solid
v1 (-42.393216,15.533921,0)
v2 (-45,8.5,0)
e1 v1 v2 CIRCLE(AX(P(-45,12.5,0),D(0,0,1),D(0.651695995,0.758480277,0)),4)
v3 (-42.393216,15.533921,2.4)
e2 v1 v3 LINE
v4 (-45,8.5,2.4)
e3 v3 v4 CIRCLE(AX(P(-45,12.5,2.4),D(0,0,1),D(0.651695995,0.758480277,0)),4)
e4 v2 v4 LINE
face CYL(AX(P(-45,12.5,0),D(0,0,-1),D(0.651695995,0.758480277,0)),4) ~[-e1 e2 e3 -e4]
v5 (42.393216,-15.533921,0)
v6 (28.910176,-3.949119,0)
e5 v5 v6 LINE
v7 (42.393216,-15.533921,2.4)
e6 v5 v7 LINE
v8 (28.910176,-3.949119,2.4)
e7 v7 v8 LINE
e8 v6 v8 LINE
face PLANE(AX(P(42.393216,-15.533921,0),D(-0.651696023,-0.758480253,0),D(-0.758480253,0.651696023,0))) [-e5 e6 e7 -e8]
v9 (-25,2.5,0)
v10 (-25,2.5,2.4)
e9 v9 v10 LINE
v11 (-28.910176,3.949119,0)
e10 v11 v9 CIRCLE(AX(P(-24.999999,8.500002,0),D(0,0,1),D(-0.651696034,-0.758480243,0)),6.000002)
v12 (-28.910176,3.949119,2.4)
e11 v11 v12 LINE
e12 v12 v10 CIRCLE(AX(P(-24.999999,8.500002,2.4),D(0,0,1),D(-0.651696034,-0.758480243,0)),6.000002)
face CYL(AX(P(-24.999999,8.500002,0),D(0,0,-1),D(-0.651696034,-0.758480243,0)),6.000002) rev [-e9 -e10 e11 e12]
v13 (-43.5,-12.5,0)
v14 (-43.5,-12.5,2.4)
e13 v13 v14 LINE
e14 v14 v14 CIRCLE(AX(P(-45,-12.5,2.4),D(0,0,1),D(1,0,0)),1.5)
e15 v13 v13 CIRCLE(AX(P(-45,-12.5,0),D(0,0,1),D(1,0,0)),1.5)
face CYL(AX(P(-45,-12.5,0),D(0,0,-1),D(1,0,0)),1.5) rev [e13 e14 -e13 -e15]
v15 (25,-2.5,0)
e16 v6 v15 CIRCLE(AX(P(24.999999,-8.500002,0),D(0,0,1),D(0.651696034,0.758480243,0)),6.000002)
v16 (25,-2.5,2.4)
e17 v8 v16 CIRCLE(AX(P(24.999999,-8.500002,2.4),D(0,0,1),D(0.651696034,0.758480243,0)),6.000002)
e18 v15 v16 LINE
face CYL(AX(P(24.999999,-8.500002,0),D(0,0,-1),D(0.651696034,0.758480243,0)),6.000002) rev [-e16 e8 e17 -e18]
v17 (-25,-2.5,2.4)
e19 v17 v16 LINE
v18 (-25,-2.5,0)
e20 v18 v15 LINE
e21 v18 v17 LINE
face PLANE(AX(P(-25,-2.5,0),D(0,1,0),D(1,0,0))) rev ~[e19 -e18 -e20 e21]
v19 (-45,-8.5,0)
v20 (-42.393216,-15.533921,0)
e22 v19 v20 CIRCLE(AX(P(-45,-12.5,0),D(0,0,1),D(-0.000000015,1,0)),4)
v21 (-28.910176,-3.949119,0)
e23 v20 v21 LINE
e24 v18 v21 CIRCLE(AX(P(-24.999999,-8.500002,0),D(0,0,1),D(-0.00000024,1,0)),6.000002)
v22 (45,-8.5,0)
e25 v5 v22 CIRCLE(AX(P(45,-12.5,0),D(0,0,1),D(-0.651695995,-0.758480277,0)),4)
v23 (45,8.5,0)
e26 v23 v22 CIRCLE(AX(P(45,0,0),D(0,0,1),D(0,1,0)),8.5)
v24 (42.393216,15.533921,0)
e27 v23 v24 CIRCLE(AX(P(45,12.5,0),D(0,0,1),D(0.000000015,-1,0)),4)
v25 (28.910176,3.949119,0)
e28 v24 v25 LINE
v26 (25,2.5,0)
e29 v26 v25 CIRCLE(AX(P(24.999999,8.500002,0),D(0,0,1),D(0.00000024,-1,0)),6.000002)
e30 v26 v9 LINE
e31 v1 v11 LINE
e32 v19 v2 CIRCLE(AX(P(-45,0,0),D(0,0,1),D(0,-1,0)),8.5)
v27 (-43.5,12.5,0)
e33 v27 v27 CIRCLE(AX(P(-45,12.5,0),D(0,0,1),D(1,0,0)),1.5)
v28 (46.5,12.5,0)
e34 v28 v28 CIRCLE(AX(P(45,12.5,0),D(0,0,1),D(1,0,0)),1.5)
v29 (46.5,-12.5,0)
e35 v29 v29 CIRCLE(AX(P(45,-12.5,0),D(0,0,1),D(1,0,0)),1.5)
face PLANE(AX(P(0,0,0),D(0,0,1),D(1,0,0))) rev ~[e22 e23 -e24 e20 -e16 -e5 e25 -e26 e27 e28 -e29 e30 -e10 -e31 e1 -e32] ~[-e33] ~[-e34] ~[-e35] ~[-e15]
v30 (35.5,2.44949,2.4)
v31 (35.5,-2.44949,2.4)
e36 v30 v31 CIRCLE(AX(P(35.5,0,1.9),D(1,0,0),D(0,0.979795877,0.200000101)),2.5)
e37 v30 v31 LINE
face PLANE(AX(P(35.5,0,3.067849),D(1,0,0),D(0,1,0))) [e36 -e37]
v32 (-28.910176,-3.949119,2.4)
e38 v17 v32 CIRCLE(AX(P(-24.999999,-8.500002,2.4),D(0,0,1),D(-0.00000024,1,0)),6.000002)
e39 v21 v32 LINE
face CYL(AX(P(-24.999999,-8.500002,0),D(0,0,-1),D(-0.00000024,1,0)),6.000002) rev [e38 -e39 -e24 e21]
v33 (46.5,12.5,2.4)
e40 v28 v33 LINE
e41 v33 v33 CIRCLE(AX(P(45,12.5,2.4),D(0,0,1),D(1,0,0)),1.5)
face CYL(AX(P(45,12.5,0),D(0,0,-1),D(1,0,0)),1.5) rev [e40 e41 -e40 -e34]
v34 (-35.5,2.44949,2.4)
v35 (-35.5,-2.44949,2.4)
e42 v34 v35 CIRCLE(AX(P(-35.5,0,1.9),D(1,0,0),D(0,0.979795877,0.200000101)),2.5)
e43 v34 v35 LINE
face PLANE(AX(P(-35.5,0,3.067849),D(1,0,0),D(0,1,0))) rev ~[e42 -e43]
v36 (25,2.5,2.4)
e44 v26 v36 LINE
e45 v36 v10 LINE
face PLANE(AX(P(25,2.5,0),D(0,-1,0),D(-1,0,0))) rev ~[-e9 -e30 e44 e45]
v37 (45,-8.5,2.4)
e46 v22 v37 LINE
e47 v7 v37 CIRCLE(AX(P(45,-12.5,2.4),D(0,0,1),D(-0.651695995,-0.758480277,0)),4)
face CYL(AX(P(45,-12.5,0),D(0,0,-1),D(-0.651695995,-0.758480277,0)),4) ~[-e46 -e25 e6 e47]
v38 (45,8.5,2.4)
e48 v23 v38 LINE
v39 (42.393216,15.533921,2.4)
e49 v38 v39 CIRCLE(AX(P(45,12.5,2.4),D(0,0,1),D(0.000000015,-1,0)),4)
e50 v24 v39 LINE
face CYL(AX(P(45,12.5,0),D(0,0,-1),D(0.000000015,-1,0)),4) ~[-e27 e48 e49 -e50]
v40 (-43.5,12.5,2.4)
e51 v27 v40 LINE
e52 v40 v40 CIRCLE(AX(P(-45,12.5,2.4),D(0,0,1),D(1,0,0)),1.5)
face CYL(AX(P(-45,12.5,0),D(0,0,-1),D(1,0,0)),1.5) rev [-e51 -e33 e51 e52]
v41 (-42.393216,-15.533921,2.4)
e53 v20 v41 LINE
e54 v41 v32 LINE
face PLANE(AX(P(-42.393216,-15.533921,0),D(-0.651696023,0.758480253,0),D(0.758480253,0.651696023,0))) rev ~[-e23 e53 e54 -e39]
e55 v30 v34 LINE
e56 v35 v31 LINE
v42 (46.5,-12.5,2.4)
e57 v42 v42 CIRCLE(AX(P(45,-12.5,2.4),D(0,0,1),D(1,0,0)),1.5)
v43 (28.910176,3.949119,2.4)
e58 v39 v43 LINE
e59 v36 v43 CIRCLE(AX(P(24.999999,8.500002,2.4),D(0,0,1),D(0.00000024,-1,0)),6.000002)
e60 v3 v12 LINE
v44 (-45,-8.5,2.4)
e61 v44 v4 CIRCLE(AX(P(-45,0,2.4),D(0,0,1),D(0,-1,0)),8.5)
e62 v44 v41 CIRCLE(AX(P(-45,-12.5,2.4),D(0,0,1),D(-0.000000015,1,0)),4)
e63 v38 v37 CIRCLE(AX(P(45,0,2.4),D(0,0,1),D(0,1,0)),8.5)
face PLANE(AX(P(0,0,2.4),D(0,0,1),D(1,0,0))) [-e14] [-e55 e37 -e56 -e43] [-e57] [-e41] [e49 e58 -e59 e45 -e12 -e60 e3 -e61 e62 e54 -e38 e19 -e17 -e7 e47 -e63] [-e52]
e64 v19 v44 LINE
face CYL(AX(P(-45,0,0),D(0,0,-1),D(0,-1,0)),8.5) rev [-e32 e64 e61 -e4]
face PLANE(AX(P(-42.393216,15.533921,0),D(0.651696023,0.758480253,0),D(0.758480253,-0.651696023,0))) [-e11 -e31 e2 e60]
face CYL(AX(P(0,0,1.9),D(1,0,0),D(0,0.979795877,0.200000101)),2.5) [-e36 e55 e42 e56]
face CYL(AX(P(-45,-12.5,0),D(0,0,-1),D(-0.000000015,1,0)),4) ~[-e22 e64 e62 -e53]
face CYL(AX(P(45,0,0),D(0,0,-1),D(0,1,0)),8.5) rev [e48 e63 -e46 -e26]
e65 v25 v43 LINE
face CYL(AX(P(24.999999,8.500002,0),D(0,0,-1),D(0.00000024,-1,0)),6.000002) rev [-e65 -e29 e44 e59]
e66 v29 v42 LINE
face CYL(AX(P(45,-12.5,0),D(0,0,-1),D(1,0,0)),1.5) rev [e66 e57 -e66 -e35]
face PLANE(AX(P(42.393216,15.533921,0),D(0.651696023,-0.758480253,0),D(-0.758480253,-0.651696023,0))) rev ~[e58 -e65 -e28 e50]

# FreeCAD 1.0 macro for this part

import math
import FreeCAD as App
import Part
import Sketcher

V = App.Vector

doc = App.newDocument("Part")
params = doc.addObject("Spreadsheet::Sheet", "Params")
for row, (alias, value) in enumerate([
    ("sketch1_diameter", "3 mm"),
    ("sketch1_radius", "4 mm"),
    ("sketch1_radius2", "6.000002 mm"),
    ("sketch1_radius3", "8.5 mm"),
    ("sketch1_width", "50 mm"),
    ("pad1_length", "2.4 mm"),
    ("sketch2_radius", "2.5 mm"),
    ("pad2_length", "71 mm"),
], start=1):
    params.set(f"A{row}", alias)
    params.set(f"B{row}", "=" + value)
    params.setAlias(f"B{row}", alias)

body = doc.addObject("PartDesign::Body", "Body")

# Sketch on XY plane
sketch1 = body.newObject("Sketcher::SketchObject", "Sketch")
sketch1.AttachmentSupport = (doc.getObject("XY_Plane"), [""])
sketch1.MapMode = "FlatFace"
sketch1.addGeometry([
    Part.ArcOfCircle(Part.Circle(V(45, -12.5, 0), V(0, 0, 1), 4), math.radians(-131), math.radians(90)),  # 0
    Part.ArcOfCircle(Part.Circle(V(45, 0, 0), V(0, 0, 1), 8.5), math.radians(90), math.radians(270)),  # 1
    Part.ArcOfCircle(Part.Circle(V(45, 12.5, 0), V(0, 0, 1), 4), math.radians(-90), math.radians(131)),  # 2
    Part.LineSegment(V(42.4, 15.5, 0), V(28.9, 3.9, 0)),  # 3
    Part.ArcOfCircle(Part.Circle(V(25, 8.5, 0), V(0, 0, 1), 6), math.radians(-90), math.radians(-49)),  # 4
    Part.LineSegment(V(25, 2.5, 0), V(-25, 2.5, 0)),  # 5
    Part.ArcOfCircle(Part.Circle(V(-25, 8.5, 0), V(0, 0, 1), 6), math.radians(-131), math.radians(-90)),  # 6
    Part.LineSegment(V(-28.9, 3.9, 0), V(-42.4, 15.5, 0)),  # 7
    Part.ArcOfCircle(Part.Circle(V(-45, 12.5, 0), V(0, 0, 1), 4), math.radians(49), math.radians(270)),  # 8
    Part.ArcOfCircle(Part.Circle(V(-45, 0, 0), V(0, 0, 1), 8.5), math.radians(-90), math.radians(90)),  # 9
    Part.ArcOfCircle(Part.Circle(V(-45, -12.5, 0), V(0, 0, 1), 4), math.radians(90), math.radians(311)),  # 10
    Part.LineSegment(V(-42.4, -15.5, 0), V(-28.9, -3.9, 0)),  # 11
    Part.ArcOfCircle(Part.Circle(V(-25, -8.5, 0), V(0, 0, 1), 6), math.radians(90), math.radians(131)),  # 12
    Part.LineSegment(V(-25, -2.5, 0), V(25, -2.5, 0)),  # 13
    Part.ArcOfCircle(Part.Circle(V(25, -8.5, 0), V(0, 0, 1), 6), math.radians(49), math.radians(90)),  # 14
    Part.LineSegment(V(28.9, -3.9, 0), V(42.4, -15.5, 0)),  # 15
    Part.Circle(V(-45, -12.5, 0), V(0, 0, 1), 1.5),  # 16
    Part.Circle(V(45, -12.5, 0), V(0, 0, 1), 1.5),  # 17
    Part.Circle(V(-45, 12.5, 0), V(0, 0, 1), 1.5),  # 18
    Part.Circle(V(45, 12.5, 0), V(0, 0, 1), 1.5),  # 19
], False)
sketch1.addConstraint([
    Sketcher.Constraint("Tangent", 0, 2, 1, 2),
    Sketcher.Constraint("Tangent", 1, 1, 2, 1),
    Sketcher.Constraint("Tangent", 2, 2, 3, 1),
    Sketcher.Constraint("Tangent", 3, 2, 4, 2),
    Sketcher.Constraint("Tangent", 4, 1, 5, 1),
    Sketcher.Constraint("Tangent", 5, 2, 6, 2),
    Sketcher.Constraint("Tangent", 6, 1, 7, 1),
    Sketcher.Constraint("Tangent", 7, 2, 8, 1),
    Sketcher.Constraint("Tangent", 8, 2, 9, 2),
    Sketcher.Constraint("Tangent", 9, 1, 10, 1),
    Sketcher.Constraint("Tangent", 10, 2, 11, 1),
    Sketcher.Constraint("Tangent", 11, 2, 12, 2),
    Sketcher.Constraint("Tangent", 12, 1, 13, 1),
    Sketcher.Constraint("Tangent", 13, 2, 14, 2),
    Sketcher.Constraint("Tangent", 14, 1, 15, 1),
    Sketcher.Constraint("Tangent", 15, 2, 0, 1),
    Sketcher.Constraint("Horizontal", 5),
    Sketcher.Constraint("Horizontal", 13),
    Sketcher.Constraint("Coincident", 16, 3, 10, 3),
    Sketcher.Constraint("Coincident", 17, 3, 0, 3),
    Sketcher.Constraint("Coincident", 18, 3, 8, 3),
    Sketcher.Constraint("Coincident", 19, 3, 2, 3),
    Sketcher.Constraint("Equal", 0, 2),
    Sketcher.Constraint("Equal", 4, 6),
    Sketcher.Constraint("Equal", 2, 8),
    Sketcher.Constraint("Equal", 1, 9),
    Sketcher.Constraint("Equal", 8, 10),
    Sketcher.Constraint("Equal", 6, 12),
    Sketcher.Constraint("Equal", 12, 14),
    Sketcher.Constraint("Equal", 16, 17),
    Sketcher.Constraint("Equal", 17, 18),
    Sketcher.Constraint("Equal", 18, 19),
    Sketcher.Constraint("Symmetric", 0, 3, 8, 3, -1, 1),
    Sketcher.Constraint("Symmetric", 4, 3, 12, 3, -1, 1),
    Sketcher.Constraint("Symmetric", 2, 3, 8, 3, -2),
    Sketcher.Constraint("Symmetric", 11, 2, 14, 1, -2),
    Sketcher.Constraint("Parallel", 7, 15),
    Sketcher.Constraint("Horizontal", 14, 3, 0, 2),
    Sketcher.Constraint("Vertical", 0, 3, 1, 3),
    Sketcher.Constraint("Vertical", 8, 3, 9, 3),
    Sketcher.Constraint("Diameter", 16, 3.0),
    Sketcher.Constraint("Radius", 0, 4.0),
    Sketcher.Constraint("Radius", 4, 6.000002),
    Sketcher.Constraint("Radius", 1, 8.5),
    Sketcher.Constraint("DistanceX", 5, 2, 5, 1, 50.0),
    Sketcher.Constraint("DistanceX", -1, 1, 0, 3, 45.0),
])
sketch1.setExpression("Constraints[40]", "Params.sketch1_diameter")
sketch1.setExpression("Constraints[41]", "Params.sketch1_radius")
sketch1.setExpression("Constraints[42]", "Params.sketch1_radius2")
sketch1.setExpression("Constraints[43]", "Params.sketch1_radius3")
sketch1.setExpression("Constraints[44]", "Params.sketch1_width")
pad1 = body.newObject("PartDesign::Pad", "Pad")
pad1.Profile = sketch1
pad1.setExpression("Length", "Params.pad1_length")

# Sketch on YZ plane
sketch2 = body.newObject("Sketcher::SketchObject", "Sketch001")
sketch2.AttachmentSupport = (doc.getObject("YZ_Plane"), [""])
sketch2.MapMode = "FlatFace"
sketch2.addGeometry([
    Part.ArcOfCircle(Part.Circle(V(0, 1.9, 0), V(0, 0, 1), 2.5), math.radians(12), math.radians(168)),
    Part.LineSegment(V(-2.4, 2.4, 0), V(2.4, 2.4, 0)),
], False)
sketch2.addConstraint([
    Sketcher.Constraint("Coincident", 0, 1, 1, 2),
    Sketcher.Constraint("Coincident", 1, 1, 0, 2),
    Sketcher.Constraint("Horizontal", 1),
    Sketcher.Constraint("PointOnObject", 0, 3, -2),
    Sketcher.Constraint("Radius", 0, 2.5),
    Sketcher.Constraint("DistanceY", -1, 1, 0, 3, 1.9),
    Sketcher.Constraint("DistanceY", -1, 1, 0, 1, 2.4),
])
sketch2.setExpression("Constraints[4]", "Params.sketch2_radius")
pad2 = body.newObject("PartDesign::Pad", "Pad001")
pad2.Profile = sketch2
pad2.setExpression("Length", "Params.pad2_length")
pad2.Midplane = True

doc.recompute()
